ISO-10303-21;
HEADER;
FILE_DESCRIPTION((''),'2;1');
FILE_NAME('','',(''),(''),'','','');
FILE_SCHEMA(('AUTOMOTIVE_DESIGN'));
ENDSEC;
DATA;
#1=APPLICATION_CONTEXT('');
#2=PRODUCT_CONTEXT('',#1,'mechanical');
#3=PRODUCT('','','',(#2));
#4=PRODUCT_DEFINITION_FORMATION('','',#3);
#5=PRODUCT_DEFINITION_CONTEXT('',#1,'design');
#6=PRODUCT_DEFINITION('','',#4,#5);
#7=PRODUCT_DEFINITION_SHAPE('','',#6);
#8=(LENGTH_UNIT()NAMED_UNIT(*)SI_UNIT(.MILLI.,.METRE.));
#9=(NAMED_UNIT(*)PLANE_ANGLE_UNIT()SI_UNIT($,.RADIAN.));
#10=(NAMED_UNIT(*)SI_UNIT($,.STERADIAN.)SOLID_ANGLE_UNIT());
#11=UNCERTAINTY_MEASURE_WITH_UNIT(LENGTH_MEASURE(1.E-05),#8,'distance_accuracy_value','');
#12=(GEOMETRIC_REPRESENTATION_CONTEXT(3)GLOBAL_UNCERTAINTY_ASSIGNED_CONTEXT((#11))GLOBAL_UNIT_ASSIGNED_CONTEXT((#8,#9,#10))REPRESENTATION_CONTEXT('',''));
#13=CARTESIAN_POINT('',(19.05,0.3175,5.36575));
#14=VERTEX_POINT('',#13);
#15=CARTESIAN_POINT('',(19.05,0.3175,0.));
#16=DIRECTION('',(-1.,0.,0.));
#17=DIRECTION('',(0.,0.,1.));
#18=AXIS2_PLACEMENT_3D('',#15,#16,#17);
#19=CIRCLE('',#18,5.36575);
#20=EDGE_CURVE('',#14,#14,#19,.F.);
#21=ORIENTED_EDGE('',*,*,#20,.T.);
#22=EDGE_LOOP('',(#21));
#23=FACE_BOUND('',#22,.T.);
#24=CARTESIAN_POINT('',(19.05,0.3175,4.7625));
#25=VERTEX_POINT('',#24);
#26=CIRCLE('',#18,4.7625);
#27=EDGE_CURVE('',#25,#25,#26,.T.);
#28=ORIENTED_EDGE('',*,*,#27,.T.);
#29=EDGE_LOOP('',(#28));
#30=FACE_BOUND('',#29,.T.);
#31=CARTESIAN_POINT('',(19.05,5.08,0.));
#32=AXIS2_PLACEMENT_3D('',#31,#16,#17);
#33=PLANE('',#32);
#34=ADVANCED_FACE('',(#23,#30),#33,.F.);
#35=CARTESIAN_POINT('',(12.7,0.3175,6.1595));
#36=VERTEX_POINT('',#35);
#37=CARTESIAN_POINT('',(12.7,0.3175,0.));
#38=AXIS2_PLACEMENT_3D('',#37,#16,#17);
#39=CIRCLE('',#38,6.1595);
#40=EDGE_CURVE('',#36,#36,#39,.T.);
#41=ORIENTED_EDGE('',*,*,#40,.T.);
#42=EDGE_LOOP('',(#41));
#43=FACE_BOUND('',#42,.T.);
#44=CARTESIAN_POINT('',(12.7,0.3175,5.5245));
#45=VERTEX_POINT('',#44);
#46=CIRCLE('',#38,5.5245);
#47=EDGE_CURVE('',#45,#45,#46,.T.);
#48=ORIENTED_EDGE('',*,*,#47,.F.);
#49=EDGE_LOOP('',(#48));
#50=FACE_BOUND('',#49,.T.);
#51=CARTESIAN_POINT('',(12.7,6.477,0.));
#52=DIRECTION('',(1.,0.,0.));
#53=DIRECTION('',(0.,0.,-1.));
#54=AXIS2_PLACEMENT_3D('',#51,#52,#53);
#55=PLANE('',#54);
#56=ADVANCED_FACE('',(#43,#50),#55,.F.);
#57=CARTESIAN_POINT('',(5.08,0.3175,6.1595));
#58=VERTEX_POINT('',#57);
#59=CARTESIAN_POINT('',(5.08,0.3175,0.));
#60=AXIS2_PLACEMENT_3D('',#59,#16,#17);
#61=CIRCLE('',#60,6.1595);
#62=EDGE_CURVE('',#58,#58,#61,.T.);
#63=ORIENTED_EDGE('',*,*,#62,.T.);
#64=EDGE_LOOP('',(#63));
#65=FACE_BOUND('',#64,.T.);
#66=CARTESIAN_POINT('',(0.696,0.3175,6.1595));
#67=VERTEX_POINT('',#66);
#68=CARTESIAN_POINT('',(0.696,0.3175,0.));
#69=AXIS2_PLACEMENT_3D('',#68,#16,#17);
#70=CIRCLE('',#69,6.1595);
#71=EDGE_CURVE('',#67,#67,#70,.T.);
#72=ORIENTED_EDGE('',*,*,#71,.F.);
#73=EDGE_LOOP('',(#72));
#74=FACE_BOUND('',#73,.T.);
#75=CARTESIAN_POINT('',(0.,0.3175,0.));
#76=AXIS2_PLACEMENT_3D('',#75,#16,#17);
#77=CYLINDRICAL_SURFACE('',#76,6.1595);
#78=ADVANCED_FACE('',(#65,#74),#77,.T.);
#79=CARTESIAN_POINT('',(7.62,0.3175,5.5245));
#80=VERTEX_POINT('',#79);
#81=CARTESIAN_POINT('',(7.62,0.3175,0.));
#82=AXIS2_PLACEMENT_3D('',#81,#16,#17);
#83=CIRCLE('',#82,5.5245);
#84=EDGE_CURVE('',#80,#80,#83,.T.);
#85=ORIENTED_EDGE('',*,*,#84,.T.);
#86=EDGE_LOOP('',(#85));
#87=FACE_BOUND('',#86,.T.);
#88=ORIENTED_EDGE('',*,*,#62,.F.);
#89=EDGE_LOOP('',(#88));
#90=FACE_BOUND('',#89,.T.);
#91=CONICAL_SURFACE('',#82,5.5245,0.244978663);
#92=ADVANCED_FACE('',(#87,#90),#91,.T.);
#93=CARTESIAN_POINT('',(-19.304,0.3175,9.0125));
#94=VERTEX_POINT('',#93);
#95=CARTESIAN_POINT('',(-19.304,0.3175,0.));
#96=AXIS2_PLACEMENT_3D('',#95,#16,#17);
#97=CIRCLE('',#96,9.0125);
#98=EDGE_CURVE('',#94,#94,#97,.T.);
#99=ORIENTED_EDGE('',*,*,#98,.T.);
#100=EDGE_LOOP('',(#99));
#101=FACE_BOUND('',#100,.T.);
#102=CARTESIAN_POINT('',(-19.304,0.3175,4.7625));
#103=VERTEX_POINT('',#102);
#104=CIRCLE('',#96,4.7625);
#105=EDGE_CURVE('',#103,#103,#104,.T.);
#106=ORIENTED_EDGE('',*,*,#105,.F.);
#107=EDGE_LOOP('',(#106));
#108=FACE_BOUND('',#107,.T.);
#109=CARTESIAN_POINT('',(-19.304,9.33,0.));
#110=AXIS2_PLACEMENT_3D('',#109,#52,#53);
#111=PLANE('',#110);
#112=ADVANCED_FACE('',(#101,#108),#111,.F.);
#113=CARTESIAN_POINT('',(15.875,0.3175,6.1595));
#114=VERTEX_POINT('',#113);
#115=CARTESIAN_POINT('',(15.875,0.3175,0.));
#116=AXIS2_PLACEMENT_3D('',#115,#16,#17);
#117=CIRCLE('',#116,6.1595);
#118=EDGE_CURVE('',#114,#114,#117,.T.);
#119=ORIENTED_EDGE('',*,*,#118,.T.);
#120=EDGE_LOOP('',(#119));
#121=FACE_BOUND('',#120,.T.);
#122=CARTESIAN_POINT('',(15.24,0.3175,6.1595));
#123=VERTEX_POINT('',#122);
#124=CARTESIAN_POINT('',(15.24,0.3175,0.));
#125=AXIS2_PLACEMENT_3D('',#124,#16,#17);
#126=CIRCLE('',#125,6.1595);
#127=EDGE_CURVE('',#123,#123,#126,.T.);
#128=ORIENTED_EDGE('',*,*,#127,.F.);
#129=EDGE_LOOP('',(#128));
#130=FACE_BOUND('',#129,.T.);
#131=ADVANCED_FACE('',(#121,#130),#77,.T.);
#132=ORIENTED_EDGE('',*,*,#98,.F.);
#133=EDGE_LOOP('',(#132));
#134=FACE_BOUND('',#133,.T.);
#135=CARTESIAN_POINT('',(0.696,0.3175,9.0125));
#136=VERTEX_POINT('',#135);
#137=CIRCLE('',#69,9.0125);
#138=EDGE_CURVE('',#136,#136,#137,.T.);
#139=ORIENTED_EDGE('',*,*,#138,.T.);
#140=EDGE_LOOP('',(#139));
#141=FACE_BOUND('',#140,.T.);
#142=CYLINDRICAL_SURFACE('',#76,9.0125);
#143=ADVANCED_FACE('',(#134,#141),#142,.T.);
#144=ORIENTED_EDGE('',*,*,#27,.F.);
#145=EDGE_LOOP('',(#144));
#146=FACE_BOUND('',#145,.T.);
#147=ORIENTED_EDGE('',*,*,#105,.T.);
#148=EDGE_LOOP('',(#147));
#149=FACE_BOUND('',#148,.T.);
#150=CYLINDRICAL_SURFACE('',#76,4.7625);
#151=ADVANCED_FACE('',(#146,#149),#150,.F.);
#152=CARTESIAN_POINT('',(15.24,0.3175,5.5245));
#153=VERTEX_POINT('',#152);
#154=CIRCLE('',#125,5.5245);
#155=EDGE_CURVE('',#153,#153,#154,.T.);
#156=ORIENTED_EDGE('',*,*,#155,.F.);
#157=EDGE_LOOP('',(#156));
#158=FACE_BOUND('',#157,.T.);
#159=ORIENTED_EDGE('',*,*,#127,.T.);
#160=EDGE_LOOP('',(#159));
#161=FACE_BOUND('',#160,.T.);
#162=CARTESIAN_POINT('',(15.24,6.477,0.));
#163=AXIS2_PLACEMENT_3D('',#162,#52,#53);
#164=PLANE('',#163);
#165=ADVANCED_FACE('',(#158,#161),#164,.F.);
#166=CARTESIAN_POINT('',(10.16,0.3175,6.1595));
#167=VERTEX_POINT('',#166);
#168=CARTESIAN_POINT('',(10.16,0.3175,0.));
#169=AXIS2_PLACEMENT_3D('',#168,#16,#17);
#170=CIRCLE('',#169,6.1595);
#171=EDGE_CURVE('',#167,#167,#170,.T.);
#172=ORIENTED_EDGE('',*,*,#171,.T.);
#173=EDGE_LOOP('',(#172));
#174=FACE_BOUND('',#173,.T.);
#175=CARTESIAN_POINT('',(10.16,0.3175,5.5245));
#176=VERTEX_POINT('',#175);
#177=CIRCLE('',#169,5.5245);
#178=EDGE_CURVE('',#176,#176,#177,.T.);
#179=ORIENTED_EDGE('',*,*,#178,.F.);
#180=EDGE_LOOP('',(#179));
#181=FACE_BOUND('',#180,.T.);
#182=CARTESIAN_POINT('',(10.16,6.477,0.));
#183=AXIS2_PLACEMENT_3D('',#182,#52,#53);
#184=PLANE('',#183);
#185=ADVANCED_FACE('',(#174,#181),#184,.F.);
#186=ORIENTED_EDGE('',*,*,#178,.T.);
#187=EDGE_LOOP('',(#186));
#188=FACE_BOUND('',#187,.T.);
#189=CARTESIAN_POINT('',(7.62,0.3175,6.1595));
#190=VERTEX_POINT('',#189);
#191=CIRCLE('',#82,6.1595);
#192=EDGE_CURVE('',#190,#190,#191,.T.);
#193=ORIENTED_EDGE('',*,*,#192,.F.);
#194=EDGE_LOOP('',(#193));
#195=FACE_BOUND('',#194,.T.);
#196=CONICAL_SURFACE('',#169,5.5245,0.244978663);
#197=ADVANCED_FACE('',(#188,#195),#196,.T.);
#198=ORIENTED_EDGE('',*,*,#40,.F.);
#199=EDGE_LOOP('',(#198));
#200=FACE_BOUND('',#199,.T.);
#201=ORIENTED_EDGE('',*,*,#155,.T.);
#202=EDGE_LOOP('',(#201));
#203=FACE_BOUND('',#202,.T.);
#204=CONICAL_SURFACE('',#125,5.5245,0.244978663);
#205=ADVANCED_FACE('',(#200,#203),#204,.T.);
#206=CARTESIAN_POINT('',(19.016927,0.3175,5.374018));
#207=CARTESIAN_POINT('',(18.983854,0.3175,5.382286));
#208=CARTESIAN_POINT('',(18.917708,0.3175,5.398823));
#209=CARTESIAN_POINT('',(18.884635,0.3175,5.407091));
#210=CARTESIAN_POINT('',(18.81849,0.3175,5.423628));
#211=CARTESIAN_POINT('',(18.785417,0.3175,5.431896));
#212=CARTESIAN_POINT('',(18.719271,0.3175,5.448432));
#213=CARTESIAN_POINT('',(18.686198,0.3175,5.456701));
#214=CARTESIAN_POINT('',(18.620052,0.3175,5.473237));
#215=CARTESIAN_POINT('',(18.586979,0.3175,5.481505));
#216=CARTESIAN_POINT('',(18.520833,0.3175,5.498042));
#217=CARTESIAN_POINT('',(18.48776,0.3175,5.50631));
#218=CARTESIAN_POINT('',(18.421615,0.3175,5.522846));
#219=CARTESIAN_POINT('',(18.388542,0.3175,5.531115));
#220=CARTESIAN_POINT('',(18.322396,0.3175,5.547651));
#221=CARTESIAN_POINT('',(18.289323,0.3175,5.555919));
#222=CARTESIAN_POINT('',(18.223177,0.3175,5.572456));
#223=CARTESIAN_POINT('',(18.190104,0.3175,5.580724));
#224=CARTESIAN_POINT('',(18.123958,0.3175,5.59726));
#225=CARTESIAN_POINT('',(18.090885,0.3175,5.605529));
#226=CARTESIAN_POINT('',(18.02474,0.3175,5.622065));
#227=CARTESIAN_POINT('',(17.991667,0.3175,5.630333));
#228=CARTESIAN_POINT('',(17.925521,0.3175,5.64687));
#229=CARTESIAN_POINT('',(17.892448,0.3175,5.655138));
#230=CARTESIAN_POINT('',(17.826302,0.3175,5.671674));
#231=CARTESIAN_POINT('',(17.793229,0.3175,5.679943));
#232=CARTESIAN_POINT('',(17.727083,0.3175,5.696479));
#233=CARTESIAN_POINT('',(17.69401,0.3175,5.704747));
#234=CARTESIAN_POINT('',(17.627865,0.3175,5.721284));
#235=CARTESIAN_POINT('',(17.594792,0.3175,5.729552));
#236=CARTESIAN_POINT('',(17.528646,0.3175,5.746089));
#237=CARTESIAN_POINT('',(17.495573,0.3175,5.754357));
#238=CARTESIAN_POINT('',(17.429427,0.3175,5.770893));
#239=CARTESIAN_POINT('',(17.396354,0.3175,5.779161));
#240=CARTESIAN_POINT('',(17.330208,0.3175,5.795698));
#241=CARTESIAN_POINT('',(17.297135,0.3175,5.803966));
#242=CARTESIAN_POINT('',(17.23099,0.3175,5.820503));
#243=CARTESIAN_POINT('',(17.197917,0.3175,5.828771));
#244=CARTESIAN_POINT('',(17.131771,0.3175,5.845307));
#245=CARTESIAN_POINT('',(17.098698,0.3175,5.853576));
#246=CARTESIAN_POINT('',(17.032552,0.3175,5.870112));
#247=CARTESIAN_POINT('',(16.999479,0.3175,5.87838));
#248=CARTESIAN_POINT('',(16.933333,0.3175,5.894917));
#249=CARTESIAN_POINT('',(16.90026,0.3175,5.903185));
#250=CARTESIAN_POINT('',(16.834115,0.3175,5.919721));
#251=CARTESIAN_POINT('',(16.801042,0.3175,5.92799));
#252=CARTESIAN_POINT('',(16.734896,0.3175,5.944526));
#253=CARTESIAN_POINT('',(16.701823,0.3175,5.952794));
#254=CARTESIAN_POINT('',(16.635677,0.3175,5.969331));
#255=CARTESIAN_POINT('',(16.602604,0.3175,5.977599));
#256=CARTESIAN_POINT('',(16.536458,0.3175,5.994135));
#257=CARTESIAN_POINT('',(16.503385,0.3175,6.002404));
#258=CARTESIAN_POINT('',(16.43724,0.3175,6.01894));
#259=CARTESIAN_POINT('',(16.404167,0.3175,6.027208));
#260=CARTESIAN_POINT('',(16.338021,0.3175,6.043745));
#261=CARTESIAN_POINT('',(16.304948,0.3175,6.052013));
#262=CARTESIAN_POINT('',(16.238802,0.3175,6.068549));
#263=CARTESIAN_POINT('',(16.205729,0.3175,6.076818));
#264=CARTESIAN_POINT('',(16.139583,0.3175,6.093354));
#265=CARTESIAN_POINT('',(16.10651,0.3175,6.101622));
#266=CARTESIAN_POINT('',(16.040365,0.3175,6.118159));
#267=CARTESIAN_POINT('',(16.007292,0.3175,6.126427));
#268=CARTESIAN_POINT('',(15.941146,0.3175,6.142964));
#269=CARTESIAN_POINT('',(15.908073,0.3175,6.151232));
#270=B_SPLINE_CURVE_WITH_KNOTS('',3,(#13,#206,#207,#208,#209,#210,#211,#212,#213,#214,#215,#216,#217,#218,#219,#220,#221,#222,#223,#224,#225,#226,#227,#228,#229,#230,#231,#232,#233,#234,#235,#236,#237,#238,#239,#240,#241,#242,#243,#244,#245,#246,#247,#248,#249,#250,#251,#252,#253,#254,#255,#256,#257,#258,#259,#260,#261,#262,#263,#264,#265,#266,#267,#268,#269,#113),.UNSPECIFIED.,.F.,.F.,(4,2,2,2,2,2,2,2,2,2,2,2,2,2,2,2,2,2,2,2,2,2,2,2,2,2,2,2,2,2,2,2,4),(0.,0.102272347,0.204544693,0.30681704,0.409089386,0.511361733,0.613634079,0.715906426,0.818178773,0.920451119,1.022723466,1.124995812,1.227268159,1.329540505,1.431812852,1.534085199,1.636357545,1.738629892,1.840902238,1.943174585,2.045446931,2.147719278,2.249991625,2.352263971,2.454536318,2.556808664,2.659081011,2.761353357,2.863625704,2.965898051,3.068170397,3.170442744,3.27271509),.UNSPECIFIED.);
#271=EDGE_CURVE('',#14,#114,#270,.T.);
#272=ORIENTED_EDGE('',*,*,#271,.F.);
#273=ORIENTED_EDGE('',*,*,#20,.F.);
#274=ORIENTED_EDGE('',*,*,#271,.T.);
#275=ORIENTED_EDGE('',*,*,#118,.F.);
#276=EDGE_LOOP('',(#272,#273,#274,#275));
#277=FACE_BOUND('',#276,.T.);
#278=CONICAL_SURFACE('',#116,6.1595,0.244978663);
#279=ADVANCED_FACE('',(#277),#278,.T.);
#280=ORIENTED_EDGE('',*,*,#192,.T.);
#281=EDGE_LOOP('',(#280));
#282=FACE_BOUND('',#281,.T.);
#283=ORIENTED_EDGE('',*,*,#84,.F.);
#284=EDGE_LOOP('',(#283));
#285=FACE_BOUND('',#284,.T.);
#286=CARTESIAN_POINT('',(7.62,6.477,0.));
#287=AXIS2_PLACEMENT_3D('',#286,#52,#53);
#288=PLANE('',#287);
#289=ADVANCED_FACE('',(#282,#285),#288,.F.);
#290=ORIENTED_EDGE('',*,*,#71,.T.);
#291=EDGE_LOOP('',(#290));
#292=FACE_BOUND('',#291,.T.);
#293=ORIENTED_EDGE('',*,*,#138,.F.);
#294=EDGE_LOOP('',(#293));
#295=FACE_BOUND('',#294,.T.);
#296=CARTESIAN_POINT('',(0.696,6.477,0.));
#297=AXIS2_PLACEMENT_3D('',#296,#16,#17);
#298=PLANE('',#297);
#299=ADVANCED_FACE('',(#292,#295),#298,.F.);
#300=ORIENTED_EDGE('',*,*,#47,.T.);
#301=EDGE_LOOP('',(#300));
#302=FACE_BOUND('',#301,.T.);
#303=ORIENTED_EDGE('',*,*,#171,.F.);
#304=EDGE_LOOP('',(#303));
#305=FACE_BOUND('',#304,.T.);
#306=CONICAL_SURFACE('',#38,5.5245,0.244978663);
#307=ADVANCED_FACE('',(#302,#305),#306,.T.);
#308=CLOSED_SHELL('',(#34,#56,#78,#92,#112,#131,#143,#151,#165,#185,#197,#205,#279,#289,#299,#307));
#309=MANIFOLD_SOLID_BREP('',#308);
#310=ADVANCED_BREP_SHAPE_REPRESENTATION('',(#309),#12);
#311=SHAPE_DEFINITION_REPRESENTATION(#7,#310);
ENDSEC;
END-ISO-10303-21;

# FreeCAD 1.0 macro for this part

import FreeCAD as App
import Part
import Sketcher

V = App.Vector
Q = App.Units.Quantity


def edges_at(feature, points):
    """Names of the edges that pass closest to the given points."""
    edges = feature.Shape.Edges
    near = lambda p: min(range(len(edges)), key=lambda i: edges[i].distToShape(Part.Vertex(*p))[0])
    return sorted({f"Edge{near(p) + 1}" for p in points})

doc = App.newDocument("Part")
params = doc.addObject("Spreadsheet::Sheet", "Params")
for row, (alias, value) in enumerate([
    ("sketch1_width", "1.51 in"),
    ("sketch1_width2", "0.15 in"),
    ("sketch1_height", "0.055 in"),
    ("sketch1_height2", "0.025 in"),
    ("revolution_angle", "360 deg"),
    ("chamfer_size", "0.03125 in"),
    ("chamfer_size2", "0.125 in"),
], start=1):
    params.set(f"A{row}", alias)
    params.set(f"B{row}", "=" + value)
    params.setAlias(f"B{row}", alias)

body = doc.addObject("PartDesign::Body", "Body")

sketch1 = doc.addObject("Sketcher::SketchObject", "Sketch")
body.addObject(sketch1)
sketch1.AttachmentSupport = (doc.XY_Plane, [""])
sketch1.MapMode = "FlatFace"
sketch1.addGeometry(Part.LineSegment(V(-19.3, 5.1, 0), V(19.1, 5.1, 0)), False)
sketch1.addGeometry(Part.LineSegment(V(19.1, 5.1, 0), V(19.1, 6.5, 0)), False)
sketch1.addGeometry(Part.LineSegment(V(19.1, 6.5, 0), V(15.2, 6.5, 0)), False)
sketch1.addGeometry(Part.LineSegment(V(15.2, 6.5, 0), V(15.2, 5.8, 0)), False)
sketch1.addGeometry(Part.LineSegment(V(15.2, 5.8, 0), V(12.7, 6.5, 0)), False)
sketch1.addGeometry(Part.LineSegment(V(12.7, 6.5, 0), V(12.7, 5.8, 0)), False)
sketch1.addGeometry(Part.LineSegment(V(12.7, 5.8, 0), V(10.2, 6.5, 0)), False)
sketch1.addGeometry(Part.LineSegment(V(10.2, 6.5, 0), V(10.2, 5.8, 0)), False)
sketch1.addGeometry(Part.LineSegment(V(10.2, 5.8, 0), V(7.6, 6.5, 0)), False)
sketch1.addGeometry(Part.LineSegment(V(7.6, 6.5, 0), V(7.6, 5.8, 0)), False)
sketch1.addGeometry(Part.LineSegment(V(7.6, 5.8, 0), V(5.1, 6.5, 0)), False)
sketch1.addGeometry(Part.LineSegment(V(5.1, 6.5, 0), V(0.7, 6.5, 0)), False)
sketch1.addGeometry(Part.LineSegment(V(0.7, 6.5, 0), V(0.7, 9.3, 0)), False)
sketch1.addGeometry(Part.LineSegment(V(0.7, 9.3, 0), V(-19.3, 9.3, 0)), False)
sketch1.addGeometry(Part.LineSegment(V(-19.3, 9.3, 0), V(-19.3, 5.1, 0)), False)
sketch1.addGeometry(Part.LineSegment(V(-19.3, 0.3, 0), V(19.1, 0.3, 0)), True)
sketch1.addConstraint(Sketcher.Constraint("Coincident", 0, 2, 1, 1))
sketch1.addConstraint(Sketcher.Constraint("Coincident", 1, 2, 2, 1))
sketch1.addConstraint(Sketcher.Constraint("Coincident", 2, 2, 3, 1))
sketch1.addConstraint(Sketcher.Constraint("Coincident", 3, 2, 4, 1))
sketch1.addConstraint(Sketcher.Constraint("Coincident", 4, 2, 5, 1))
sketch1.addConstraint(Sketcher.Constraint("Coincident", 5, 2, 6, 1))
sketch1.addConstraint(Sketcher.Constraint("Coincident", 6, 2, 7, 1))
sketch1.addConstraint(Sketcher.Constraint("Coincident", 7, 2, 8, 1))
sketch1.addConstraint(Sketcher.Constraint("Coincident", 8, 2, 9, 1))
sketch1.addConstraint(Sketcher.Constraint("Coincident", 9, 2, 10, 1))
sketch1.addConstraint(Sketcher.Constraint("Coincident", 10, 2, 11, 1))
sketch1.addConstraint(Sketcher.Constraint("Coincident", 11, 2, 12, 1))
sketch1.addConstraint(Sketcher.Constraint("Coincident", 12, 2, 13, 1))
sketch1.addConstraint(Sketcher.Constraint("Coincident", 13, 2, 14, 1))
sketch1.addConstraint(Sketcher.Constraint("Coincident", 14, 2, 0, 1))
sketch1.addConstraint(Sketcher.Constraint("Horizontal", 0))
sketch1.addConstraint(Sketcher.Constraint("Vertical", 1))
sketch1.addConstraint(Sketcher.Constraint("Horizontal", 2))
sketch1.addConstraint(Sketcher.Constraint("Vertical", 3))
sketch1.addConstraint(Sketcher.Constraint("Vertical", 5))
sketch1.addConstraint(Sketcher.Constraint("Vertical", 7))
sketch1.addConstraint(Sketcher.Constraint("Vertical", 9))
sketch1.addConstraint(Sketcher.Constraint("Horizontal", 11))
sketch1.addConstraint(Sketcher.Constraint("Vertical", 12))
sketch1.addConstraint(Sketcher.Constraint("Horizontal", 13))
sketch1.addConstraint(Sketcher.Constraint("Vertical", 14))
sketch1.addConstraint(Sketcher.Constraint("Horizontal", 15))
sketch1.addConstraint(Sketcher.Constraint("Parallel", 4, 6))
sketch1.addConstraint(Sketcher.Constraint("Parallel", 6, 8))
sketch1.addConstraint(Sketcher.Constraint("Parallel", 8, 10))
sketch1.addConstraint(Sketcher.Constraint("Horizontal", 2, 2, 4, 2))
sketch1.addConstraint(Sketcher.Constraint("Horizontal", 3, 2, 5, 2))
sketch1.addConstraint(Sketcher.Constraint("Horizontal", 4, 2, 6, 2))
sketch1.addConstraint(Sketcher.Constraint("Horizontal", 5, 2, 7, 2))
sketch1.addConstraint(Sketcher.Constraint("Horizontal", 6, 2, 8, 2))
sketch1.addConstraint(Sketcher.Constraint("Horizontal", 7, 2, 9, 2))
sketch1.addConstraint(Sketcher.Constraint("Horizontal", 8, 2, 10, 2))
sketch1.addConstraint(Sketcher.Constraint("Vertical", 14, 2, 15, 1))
sketch1.addConstraint(Sketcher.Constraint("Vertical", 1, 2, 15, 2))
sketch1.addConstraint(Sketcher.Constraint("DistanceX", 0, 1, 0, 2, Q("1.51 in")))
sketch1.addConstraint(Sketcher.Constraint("DistanceX", 2, 2, 2, 1, Q("0.15 in")))
sketch1.addConstraint(Sketcher.Constraint("DistanceY", -1, 1, 0, 2, Q("0.2 in")))
sketch1.addConstraint(Sketcher.Constraint("DistanceX", -1, 1, 2, 2, Q("0.6 in")))
sketch1.addConstraint(Sketcher.Constraint("DistanceX", -1, 1, 4, 2, Q("0.5 in")))
sketch1.addConstraint(Sketcher.Constraint("DistanceY", 1, 1, 1, 2, Q("0.055 in")))
sketch1.addConstraint(Sketcher.Constraint("DistanceY", 3, 2, 3, 1, Q("0.025 in")))
sketch1.addConstraint(Sketcher.Constraint("DistanceY", 15, 1, 14, 2, Q("0.1875 in")))
sketch1.addConstraint(Sketcher.Constraint("DistanceX", 11, 2, 11, 1, 4.384))
sketch1.addConstraint(Sketcher.Constraint("DistanceY", 12, 1, 12, 2, 2.853))
sketch1.setExpression("Constraints[39]", "Params.sketch1_width")
sketch1.setExpression("Constraints[40]", "Params.sketch1_width2")
sketch1.setExpression("Constraints[44]", "Params.sketch1_height")
sketch1.setExpression("Constraints[45]", "Params.sketch1_height2")
revolution = doc.addObject("PartDesign::Revolution", "Revolution")
body.addObject(revolution)
revolution.Profile = sketch1
revolution.ReferenceAxis = (sketch1, ["Axis0"])
revolution.setExpression("Angle", "Params.revolution_angle")
doc.recompute()

chamfer = doc.addObject("PartDesign::Chamfer", "Chamfer")
body.addObject(chamfer)
chamfer.Base = (revolution, edges_at(revolution, [(19.05, 0.318, -6.16)]))
chamfer.ChamferType = "Two distances"
chamfer.setExpression("Size", "Params.chamfer_size")
chamfer.setExpression("Size2", "Params.chamfer_size2")

doc.recompute()
